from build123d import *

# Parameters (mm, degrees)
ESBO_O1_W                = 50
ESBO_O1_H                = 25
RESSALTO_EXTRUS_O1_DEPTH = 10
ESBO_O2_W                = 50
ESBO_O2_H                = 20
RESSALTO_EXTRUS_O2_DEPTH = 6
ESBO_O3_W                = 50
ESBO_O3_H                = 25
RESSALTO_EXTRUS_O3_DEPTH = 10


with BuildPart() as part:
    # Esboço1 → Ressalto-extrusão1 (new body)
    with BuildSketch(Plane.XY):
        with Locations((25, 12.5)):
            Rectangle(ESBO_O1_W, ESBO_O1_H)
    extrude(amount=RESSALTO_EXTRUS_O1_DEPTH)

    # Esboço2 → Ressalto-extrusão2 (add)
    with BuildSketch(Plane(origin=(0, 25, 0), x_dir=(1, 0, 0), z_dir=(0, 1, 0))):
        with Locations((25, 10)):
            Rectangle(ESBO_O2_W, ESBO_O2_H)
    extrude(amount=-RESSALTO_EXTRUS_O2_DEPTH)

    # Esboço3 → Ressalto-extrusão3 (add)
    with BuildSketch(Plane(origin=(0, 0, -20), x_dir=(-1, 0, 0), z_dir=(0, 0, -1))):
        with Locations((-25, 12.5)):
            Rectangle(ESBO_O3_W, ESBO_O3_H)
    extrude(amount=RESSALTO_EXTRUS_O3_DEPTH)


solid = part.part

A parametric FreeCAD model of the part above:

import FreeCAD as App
import Part
import Sketcher

V = App.Vector

doc = App.newDocument("Part")
body = doc.addObject("PartDesign::Body", "Body")

sketch1 = body.newObject("Sketcher::SketchObject", "Sketch")
sketch1.AttachmentSupport = (doc.getObject("XY_Plane"), [""])
sketch1.MapMode = "FlatFace"
sketch1.addGeometry([
    Part.LineSegment(V(0, 25, 0), V(0, 0, 0)),
    Part.LineSegment(V(0, 0, 0), V(50, 0, 0)),
    Part.LineSegment(V(50, 0, 0), V(50, 25, 0)),
    Part.LineSegment(V(50, 25, 0), V(0, 25, 0)),
], False)
sketch1.addConstraint([
    Sketcher.Constraint("Coincident", 0, 2, 1, 1),
    Sketcher.Constraint("Coincident", 1, 2, 2, 1),
    Sketcher.Constraint("Coincident", 2, 2, 3, 1),
    Sketcher.Constraint("Coincident", 3, 2, 0, 1),
    Sketcher.Constraint("Vertical", 0),
    Sketcher.Constraint("Horizontal", 1),
    Sketcher.Constraint("Vertical", 2),
    Sketcher.Constraint("Horizontal", 3),
    Sketcher.Constraint("Coincident", 0, 2, -1, 1),
    Sketcher.Constraint("DistanceX", 1, 1, 1, 2, 50.0),
    Sketcher.Constraint("DistanceY", 0, 2, 0, 1, 25.0),
])
pad1 = body.newObject("PartDesign::Pad", "Pad")
pad1.Profile = sketch1
pad1.Length = 10

sketch2 = body.newObject("Sketcher::SketchObject", "Sketch001")
sketch2.AttachmentSupport = (doc.getObject("XZ_Plane"), [""])
sketch2.MapMode = "FlatFace"
sketch2.AttachmentOffset = App.Placement(V(0, 0, -25), App.Rotation())
sketch2.addGeometry([
    Part.LineSegment(V(0, -20, 0), V(0, 0, 0)),
    Part.LineSegment(V(0, 0, 0), V(50, 0, 0)),
    Part.LineSegment(V(50, 0, 0), V(50, -20, 0)),
    Part.LineSegment(V(50, -20, 0), V(0, -20, 0)),
], False)
sketch2.addConstraint([
    Sketcher.Constraint("Coincident", 0, 2, 1, 1),
    Sketcher.Constraint("Coincident", 1, 2, 2, 1),
    Sketcher.Constraint("Coincident", 2, 2, 3, 1),
    Sketcher.Constraint("Coincident", 3, 2, 0, 1),
    Sketcher.Constraint("Vertical", 0),
    Sketcher.Constraint("Horizontal", 1),
    Sketcher.Constraint("Vertical", 2),
    Sketcher.Constraint("Horizontal", 3),
    Sketcher.Constraint("Coincident", 0, 2, -1, 1),
    Sketcher.Constraint("DistanceX", 1, 1, 1, 2, 50.0),
    Sketcher.Constraint("DistanceY", 0, 1, 0, 2, 20.0),
])
pad2 = body.newObject("PartDesign::Pad", "Pad001")
pad2.Profile = sketch2
pad2.Length = 6

sketch3 = body.newObject("Sketcher::SketchObject", "Sketch002")
sketch3.AttachmentSupport = (doc.getObject("XY_Plane"), [""])
sketch3.MapMode = "FlatFace"
sketch3.AttachmentOffset = App.Placement(V(0, 0, -20), App.Rotation())
sketch3.addGeometry([
    Part.LineSegment(V(50, 25, 0), V(50, 0, 0)),
    Part.LineSegment(V(50, 0, 0), V(0, 0, 0)),
    Part.LineSegment(V(0, 0, 0), V(0, 25, 0)),
    Part.LineSegment(V(0, 25, 0), V(50, 25, 0)),
], False)
sketch3.addConstraint([
    Sketcher.Constraint("Coincident", 0, 2, 1, 1),
    Sketcher.Constraint("Coincident", 1, 2, 2, 1),
    Sketcher.Constraint("Coincident", 2, 2, 3, 1),
    Sketcher.Constraint("Coincident", 3, 2, 0, 1),
    Sketcher.Constraint("Vertical", 0),
    Sketcher.Constraint("Horizontal", 1),
    Sketcher.Constraint("Vertical", 2),
    Sketcher.Constraint("Horizontal", 3),
    Sketcher.Constraint("Coincident", 1, 2, -1, 1),
    Sketcher.Constraint("DistanceX", 1, 2, 1, 1, 50.0),
    Sketcher.Constraint("DistanceY", 0, 2, 0, 1, 25.0),
])
pad3 = body.newObject("PartDesign::Pad", "Pad002")
pad3.Profile = sketch3
pad3.Length = 10
pad3.Reversed = True

doc.recompute()
